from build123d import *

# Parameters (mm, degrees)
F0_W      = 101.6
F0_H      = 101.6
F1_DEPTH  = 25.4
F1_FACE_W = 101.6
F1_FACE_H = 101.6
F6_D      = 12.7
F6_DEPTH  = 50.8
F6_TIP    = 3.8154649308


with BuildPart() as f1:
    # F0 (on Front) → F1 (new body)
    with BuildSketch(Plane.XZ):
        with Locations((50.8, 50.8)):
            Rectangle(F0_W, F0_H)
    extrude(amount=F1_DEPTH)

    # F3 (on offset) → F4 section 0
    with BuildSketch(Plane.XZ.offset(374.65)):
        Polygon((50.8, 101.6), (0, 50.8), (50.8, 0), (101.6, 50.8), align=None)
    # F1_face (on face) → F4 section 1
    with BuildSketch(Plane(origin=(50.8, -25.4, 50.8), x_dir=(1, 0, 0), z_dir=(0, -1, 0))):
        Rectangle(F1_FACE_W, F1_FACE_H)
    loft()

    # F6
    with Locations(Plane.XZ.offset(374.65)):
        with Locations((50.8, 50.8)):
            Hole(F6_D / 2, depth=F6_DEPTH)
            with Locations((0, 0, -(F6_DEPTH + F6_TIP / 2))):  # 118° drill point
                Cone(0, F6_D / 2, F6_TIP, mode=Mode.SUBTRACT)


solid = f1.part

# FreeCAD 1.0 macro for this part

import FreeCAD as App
import Part
import Sketcher
from FreeCAD import Vector
Q = App.Units.Quantity

doc = App.newDocument("Part")
params = doc.addObject("Spreadsheet::Sheet", "Params")
for row, (alias, value) in enumerate([
    ("sketch1_width", "4 in"),
    ("pad1_length", "1 in"),
    ("sketch3_width", "4 in"),
    ("sketch4_diameter", "0.5 in"),
    ("hole_diameter", "0.5 in"),
    ("hole_depth", "2 in"),
], start=1):
    params.set(f"A{row}", alias)
    params.set(f"B{row}", "=" + value)
    params.setAlias(f"B{row}", alias)

body = doc.addObject("PartDesign::Body", "Body")

# Sketch on XZ plane
sketch1 = doc.addObject("Sketcher::SketchObject", "Sketch")
body.addObject(sketch1)
sketch1.AttachmentSupport = (doc.XZ_Plane, [""])
sketch1.MapMode = "FlatFace"
sketch1.addGeometry([
    Part.LineSegment(Vector(0, 102, 0), Vector(0, 0, 0)),
    Part.LineSegment(Vector(0, 0, 0), Vector(102, 0, 0)),
    Part.LineSegment(Vector(102, 0, 0), Vector(102, 102, 0)),
    Part.LineSegment(Vector(102, 102, 0), Vector(0, 102, 0)),
], False)
sketch1.addConstraint([
    Sketcher.Constraint("Coincident", 0, 2, 1, 1),
    Sketcher.Constraint("Coincident", 1, 2, 2, 1),
    Sketcher.Constraint("Coincident", 2, 2, 3, 1),
    Sketcher.Constraint("Coincident", 3, 2, 0, 1),
    Sketcher.Constraint("Vertical", 0),
    Sketcher.Constraint("Horizontal", 1),
    Sketcher.Constraint("Vertical", 2),
    Sketcher.Constraint("Horizontal", 3),
    Sketcher.Constraint("Coincident", 0, 2, -1, 1),
    Sketcher.Constraint("Equal", 3, 0),
    Sketcher.Constraint("DistanceX", 1, 1, 1, 2, Q("4 in")),
])
sketch1.setExpression("Constraints[10]", "Params.sketch1_width")
pad1 = doc.addObject("PartDesign::Pad", "Pad")
body.addObject(pad1)
pad1.Profile = sketch1
pad1.setExpression("Length", "Params.pad1_length")

# Sketch on XZ plane
sketch2 = doc.addObject("Sketcher::SketchObject", "Sketch001")
body.addObject(sketch2)
sketch2.AttachmentSupport = (doc.XZ_Plane, [""])
sketch2.MapMode = "FlatFace"
sketch2.AttachmentOffset = App.Placement(Vector(0, 0, 14.75 * 25.4), App.Rotation())
sketch2.addGeometry([
    Part.LineSegment(Vector(51, 102, 0), Vector(0, 51, 0)),
    Part.LineSegment(Vector(0, 51, 0), Vector(51, 0, 0)),
    Part.LineSegment(Vector(51, 0, 0), Vector(102, 51, 0)),
    Part.LineSegment(Vector(102, 51, 0), Vector(51, 102, 0)),
], False)
sketch2.addConstraint([
    Sketcher.Constraint("Coincident", 0, 2, 1, 1),
    Sketcher.Constraint("Coincident", 1, 2, 2, 1),
    Sketcher.Constraint("Coincident", 2, 2, 3, 1),
    Sketcher.Constraint("Coincident", 3, 2, 0, 1),
    Sketcher.Constraint("PointOnObject", 0, 2, -2),
    Sketcher.Constraint("PointOnObject", 1, 2, -1),
    Sketcher.Constraint("Perpendicular", 0, 1),
    Sketcher.Constraint("Perpendicular", 1, 2),
    Sketcher.Constraint("Perpendicular", 2, 3),
    Sketcher.Constraint("Horizontal", 0, 2, 2, 2),
    Sketcher.Constraint("Vertical", 1, 2, 3, 2),
    Sketcher.Constraint("DistanceY", -1, 1, 0, 2, Q("2 in")),
])

# Sketch on XZ plane
sketch3 = doc.addObject("Sketcher::SketchObject", "Sketch002")
body.addObject(sketch3)
sketch3.AttachmentSupport = (doc.XZ_Plane, [""])
sketch3.MapMode = "FlatFace"
sketch3.AttachmentOffset = App.Placement(Vector(0, 0, 1 * 25.4), App.Rotation())
sketch3.addGeometry([
    Part.LineSegment(Vector(0, 102, 0), Vector(0, 0, 0)),
    Part.LineSegment(Vector(0, 0, 0), Vector(102, 0, 0)),
    Part.LineSegment(Vector(102, 0, 0), Vector(102, 102, 0)),
    Part.LineSegment(Vector(102, 102, 0), Vector(0, 102, 0)),
], False)
sketch3.addConstraint([
    Sketcher.Constraint("Coincident", 0, 2, 1, 1),
    Sketcher.Constraint("Coincident", 1, 2, 2, 1),
    Sketcher.Constraint("Coincident", 2, 2, 3, 1),
    Sketcher.Constraint("Coincident", 3, 2, 0, 1),
    Sketcher.Constraint("Vertical", 0),
    Sketcher.Constraint("Horizontal", 1),
    Sketcher.Constraint("Vertical", 2),
    Sketcher.Constraint("Horizontal", 3),
    Sketcher.Constraint("Coincident", 0, 2, -1, 1),
    Sketcher.Constraint("Equal", 3, 0),
    Sketcher.Constraint("DistanceX", 1, 1, 1, 2, Q("4 in")),
])
sketch3.setExpression("Constraints[10]", "Params.sketch3_width")

additiveloft = doc.addObject("PartDesign::AdditiveLoft", "AdditiveLoft")
body.addObject(additiveloft)
additiveloft.Profile = sketch2
additiveloft.Sections = [sketch3]

# Sketch on XZ plane
sketch4 = doc.addObject("Sketcher::SketchObject", "Sketch003")
body.addObject(sketch4)
sketch4.AttachmentSupport = (doc.XZ_Plane, [""])
sketch4.MapMode = "FlatFace"
sketch4.AttachmentOffset = App.Placement(Vector(0, 0, 14.75 * 25.4), App.Rotation())
sketch4.addGeometry(Part.Circle(Vector(51, 51, 0), Vector(0, 0, 1), 6), False)
sketch4.addConstraint([
    Sketcher.Constraint("Diameter", 0, Q("0.5 in")),
    Sketcher.Constraint("DistanceX", -1, 1, 0, 3, Q("2 in")),
    Sketcher.Constraint("DistanceY", -1, 1, 0, 3, Q("2 in")),
])
sketch4.setExpression("Constraints[0]", "Params.sketch4_diameter")
doc.recompute()
hole = doc.addObject("PartDesign::Hole", "Hole")
body.addObject(hole)
hole.Profile = sketch4
hole.ThreadType = "None"
hole.setExpression("Diameter", "Params.hole_diameter")
hole.DepthType = "Dimension"
hole.setExpression("Depth", "Params.hole_depth")
hole.DrillPoint = "Angled"
hole.DrillPointAngle = 118

doc.recompute()
